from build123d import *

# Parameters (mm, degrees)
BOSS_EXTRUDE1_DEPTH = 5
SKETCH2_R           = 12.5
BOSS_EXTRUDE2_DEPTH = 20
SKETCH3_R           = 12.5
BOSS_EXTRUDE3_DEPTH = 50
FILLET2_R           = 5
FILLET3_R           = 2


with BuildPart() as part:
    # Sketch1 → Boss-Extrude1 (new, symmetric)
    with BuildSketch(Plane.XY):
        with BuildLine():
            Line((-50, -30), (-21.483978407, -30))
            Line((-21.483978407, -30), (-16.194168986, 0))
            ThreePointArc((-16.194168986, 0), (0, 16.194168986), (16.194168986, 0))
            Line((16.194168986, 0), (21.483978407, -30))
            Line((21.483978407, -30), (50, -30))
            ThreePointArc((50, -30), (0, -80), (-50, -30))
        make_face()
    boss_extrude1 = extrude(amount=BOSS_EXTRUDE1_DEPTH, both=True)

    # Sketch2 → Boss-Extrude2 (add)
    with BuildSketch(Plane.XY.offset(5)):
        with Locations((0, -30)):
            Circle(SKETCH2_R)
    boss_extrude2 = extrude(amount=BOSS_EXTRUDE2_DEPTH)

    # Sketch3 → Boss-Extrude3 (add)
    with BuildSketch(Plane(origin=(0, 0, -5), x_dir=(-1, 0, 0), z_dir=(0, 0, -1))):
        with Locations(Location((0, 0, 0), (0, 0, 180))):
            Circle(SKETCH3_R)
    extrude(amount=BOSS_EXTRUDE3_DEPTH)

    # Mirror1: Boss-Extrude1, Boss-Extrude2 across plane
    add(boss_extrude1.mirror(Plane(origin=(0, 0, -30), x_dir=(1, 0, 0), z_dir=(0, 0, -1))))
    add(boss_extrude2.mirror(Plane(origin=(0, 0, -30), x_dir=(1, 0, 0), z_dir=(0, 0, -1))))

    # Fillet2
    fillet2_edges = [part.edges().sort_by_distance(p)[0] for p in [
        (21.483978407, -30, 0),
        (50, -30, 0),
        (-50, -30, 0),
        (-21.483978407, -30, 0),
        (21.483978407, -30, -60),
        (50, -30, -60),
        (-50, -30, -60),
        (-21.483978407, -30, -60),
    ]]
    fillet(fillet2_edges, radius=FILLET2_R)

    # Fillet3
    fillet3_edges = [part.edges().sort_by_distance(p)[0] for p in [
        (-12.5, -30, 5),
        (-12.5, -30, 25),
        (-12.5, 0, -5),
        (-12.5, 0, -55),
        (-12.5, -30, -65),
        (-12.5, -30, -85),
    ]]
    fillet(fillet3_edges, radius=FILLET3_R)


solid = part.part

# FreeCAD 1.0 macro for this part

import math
import FreeCAD as App
import Part
import Sketcher

V = App.Vector
Q = App.Units.Quantity


def edges_at(feature, points):
    """Names of the edges that pass closest to the given points."""
    edges = feature.Shape.Edges
    near = lambda p: min(range(len(edges)), key=lambda i: edges[i].distToShape(Part.Vertex(*p))[0])
    return sorted({f"Edge{near(p) + 1}" for p in points})

doc = App.newDocument("Part")
params = doc.addObject("Spreadsheet::Sheet", "Params")
for row, (alias, value) in enumerate([
    ("sketch1_radius", "50 mm"),
    ("pad1_length", "10 mm"),
    ("sketch2_diameter", "25 mm"),
    ("pad2_length", "20 mm"),
    ("sketch3_diameter", "25 mm"),
    ("pad3_length", "50 mm"),
    ("fillet_radius", "5 mm"),
    ("fillet2_radius", "2 mm"),
], start=1):
    params.set(f"A{row}", alias)
    params.set(f"B{row}", "=" + value)
    params.setAlias(f"B{row}", alias)

body = doc.addObject("PartDesign::Body", "Body")

# Sketch on XY plane
sketch1 = body.newObject("Sketcher::SketchObject", "Sketch")
sketch1.AttachmentSupport = (doc.getObject("XY_Plane"), [""])
sketch1.MapMode = "FlatFace"
sketch1.addGeometry([
    Part.LineSegment(V(-21, -30, 0), V(-50, -30, 0)),  # 0
    Part.ArcOfCircle(Part.Circle(V(0, -30, 0), V(0, 0, 1), 50), math.radians(180), math.radians(360)),  # 1
    Part.LineSegment(V(50, -30, 0), V(21, -30, 0)),  # 2
    Part.LineSegment(V(21, -30, 0), V(16, 0, 0)),  # 3
    Part.ArcOfCircle(Part.Circle(V(0, 0, 0), V(0, 0, 1), 16), math.radians(0), math.radians(180)),  # 4
    Part.LineSegment(V(-16, 0, 0), V(-21, -30, 0)),  # 5
], False)
sketch1.addConstraint([
    Sketcher.Constraint("Coincident", 0, 2, 1, 1),
    Sketcher.Constraint("Coincident", 1, 2, 2, 1),
    Sketcher.Constraint("Coincident", 2, 2, 3, 1),
    Sketcher.Constraint("Coincident", 3, 2, 4, 1),
    Sketcher.Constraint("Coincident", 4, 2, 5, 1),
    Sketcher.Constraint("Coincident", 5, 2, 0, 1),
    Sketcher.Constraint("Horizontal", 0),
    Sketcher.Constraint("Horizontal", 2),
    Sketcher.Constraint("Coincident", 4, 3, -1, 1),
    Sketcher.Constraint("Symmetric", 0, 2, 1, 2, -2),
    Sketcher.Constraint("PointOnObject", 3, 2, -1),
    Sketcher.Constraint("PointOnObject", 4, 2, -1),
    Sketcher.Constraint("Horizontal", 1, 3, 0, 2),
    Sketcher.Constraint("Equal", 0, 2),
    Sketcher.Constraint("Radius", 1, Q("50 mm")),
    Sketcher.Constraint("Angle", 3, Q("100 deg")),
    Sketcher.Constraint("DistanceY", 1, 3, -1, 1, Q("30 mm")),
    Sketcher.Constraint("Radius", 4, Q("16.194169 mm")),
])
sketch1.setExpression("Constraints[14]", "Params.sketch1_radius")
pad1 = body.newObject("PartDesign::Pad", "Pad")
pad1.Profile = sketch1
pad1.setExpression("Length", "Params.pad1_length")
pad1.Midplane = True

# Sketch on XY plane
sketch2 = body.newObject("Sketcher::SketchObject", "Sketch001")
sketch2.AttachmentSupport = (doc.getObject("XY_Plane"), [""])
sketch2.MapMode = "FlatFace"
sketch2.AttachmentOffset = App.Placement(V(0, 0, 5), App.Rotation())
sketch2.addGeometry(Part.Circle(V(0, -30, 0), V(0, 0, 1), 12), False)
sketch2.addConstraint([
    Sketcher.Constraint("PointOnObject", 0, 3, -2),
    Sketcher.Constraint("Diameter", 0, Q("25 mm")),
    Sketcher.Constraint("DistanceY", 0, 3, -1, 1, Q("30 mm")),
])
sketch2.setExpression("Constraints[1]", "Params.sketch2_diameter")
pad2 = body.newObject("PartDesign::Pad", "Pad001")
pad2.Profile = sketch2
pad2.setExpression("Length", "Params.pad2_length")

# Sketch on XY plane
sketch3 = body.newObject("Sketcher::SketchObject", "Sketch002")
sketch3.AttachmentSupport = (doc.getObject("XY_Plane"), [""])
sketch3.MapMode = "FlatFace"
sketch3.AttachmentOffset = App.Placement(V(0, 0, -5), App.Rotation())
sketch3.addGeometry(Part.Circle(V(0, 0, 0), V(0, 0, 1), 12), False)
sketch3.addConstraint([
    Sketcher.Constraint("Coincident", 0, 3, -1, 1),
    Sketcher.Constraint("Diameter", 0, Q("25 mm")),
])
sketch3.setExpression("Constraints[1]", "Params.sketch3_diameter")
pad3 = body.newObject("PartDesign::Pad", "Pad002")
pad3.Profile = sketch3
pad3.setExpression("Length", "Params.pad3_length")
pad3.Reversed = True
doc.recompute()

datumplane = body.newObject("PartDesign::Plane", "DatumPlane")
datumplane.AttachmentSupport = (doc.getObject("XY_Plane"), [""])
datumplane.MapMode = "FlatFace"
datumplane.AttachmentOffset = App.Placement(V(0, 0, -30), App.Rotation())
mirrored = body.newObject("PartDesign::Mirrored", "Mirrored")
mirrored.Originals = [pad1, pad2]
mirrored.MirrorPlane = (datumplane, [""])
body.Tip = mirrored
doc.recompute()

fillet = body.newObject("PartDesign::Fillet", "Fillet")
fillet.Base = (mirrored, edges_at(mirrored, [
    (21.484, -30, 0),
    (50, -30, 0),
    (-50, -30, 0),
    (-21.484, -30, 0),
    (21.484, -30, -60),
    (50, -30, -60),
    (-50, -30, -60),
    (-21.484, -30, -60),
]))
fillet.setExpression("Radius", "Params.fillet_radius")
doc.recompute()

fillet2 = body.newObject("PartDesign::Fillet", "Fillet001")
fillet2.Base = (fillet, edges_at(fillet, [
    (-12.5, -30, 5),
    (-12.5, -30, 25),
    (-12.5, 0, -5),
    (-12.5, 0, -55),
    (-12.5, -30, -65),
    (-12.5, -30, -85),
]))
fillet2.setExpression("Radius", "Params.fillet2_radius")

doc.recompute()
